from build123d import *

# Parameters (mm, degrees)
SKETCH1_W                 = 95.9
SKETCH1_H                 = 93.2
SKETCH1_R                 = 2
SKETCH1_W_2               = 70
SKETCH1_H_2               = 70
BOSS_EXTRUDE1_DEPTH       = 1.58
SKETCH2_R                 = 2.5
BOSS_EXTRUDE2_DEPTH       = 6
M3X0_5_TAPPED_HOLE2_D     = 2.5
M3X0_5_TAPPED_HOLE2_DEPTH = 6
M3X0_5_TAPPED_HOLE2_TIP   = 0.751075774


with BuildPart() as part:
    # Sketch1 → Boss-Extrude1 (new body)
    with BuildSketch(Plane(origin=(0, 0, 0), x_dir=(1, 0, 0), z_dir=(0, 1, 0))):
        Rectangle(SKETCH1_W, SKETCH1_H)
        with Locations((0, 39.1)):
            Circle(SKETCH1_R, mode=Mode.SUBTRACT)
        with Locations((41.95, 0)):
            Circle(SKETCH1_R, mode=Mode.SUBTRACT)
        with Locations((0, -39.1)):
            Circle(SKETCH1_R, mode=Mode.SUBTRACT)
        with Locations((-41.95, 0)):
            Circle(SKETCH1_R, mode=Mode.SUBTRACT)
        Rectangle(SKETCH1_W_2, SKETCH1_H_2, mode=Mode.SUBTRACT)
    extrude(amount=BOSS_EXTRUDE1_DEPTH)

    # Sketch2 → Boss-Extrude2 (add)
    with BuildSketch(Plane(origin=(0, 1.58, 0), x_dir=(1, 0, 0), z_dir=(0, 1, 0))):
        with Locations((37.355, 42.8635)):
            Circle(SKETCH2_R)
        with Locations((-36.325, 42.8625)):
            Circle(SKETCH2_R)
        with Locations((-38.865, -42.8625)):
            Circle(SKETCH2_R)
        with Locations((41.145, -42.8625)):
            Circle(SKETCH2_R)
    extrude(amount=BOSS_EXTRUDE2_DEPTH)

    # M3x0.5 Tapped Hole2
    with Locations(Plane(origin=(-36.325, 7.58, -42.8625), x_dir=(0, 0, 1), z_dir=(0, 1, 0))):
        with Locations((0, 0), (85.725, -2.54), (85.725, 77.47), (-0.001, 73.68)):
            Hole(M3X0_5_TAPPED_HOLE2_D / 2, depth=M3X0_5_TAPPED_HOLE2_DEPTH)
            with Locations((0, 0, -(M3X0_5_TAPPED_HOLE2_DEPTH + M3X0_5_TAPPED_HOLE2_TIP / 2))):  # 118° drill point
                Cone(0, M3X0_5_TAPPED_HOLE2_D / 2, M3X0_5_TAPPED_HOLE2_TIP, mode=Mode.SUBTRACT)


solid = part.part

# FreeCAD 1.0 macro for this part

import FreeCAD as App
import Part
import Sketcher

doc = App.newDocument("Part")
body = doc.addObject("PartDesign::Body", "Body")

# Sketch on XZ plane
sketch1 = body.newObject("Sketcher::SketchObject", "Sketch")
sketch1.AttachmentSupport = (doc.getObject("XZ_Plane"), [""])
sketch1.MapMode = "FlatFace"
sketch1.addGeometry(Part.LineSegment(App.Vector(-47.95, -46.6, 0), App.Vector(-47.95, 46.6, 0)), False)
sketch1.addGeometry(Part.LineSegment(App.Vector(-47.95, 46.6, 0), App.Vector(47.95, 46.6, 0)), False)
sketch1.addGeometry(Part.LineSegment(App.Vector(47.95, 46.6, 0), App.Vector(47.95, -46.6, 0)), False)
sketch1.addGeometry(Part.LineSegment(App.Vector(47.95, -46.6, 0), App.Vector(-47.95, -46.6, 0)), False)
sketch1.addGeometry(Part.Circle(App.Vector(0, 39.1, 0), App.Vector(0, 0, 1), 2), False)
sketch1.addGeometry(Part.Circle(App.Vector(-41.95, 0, 0), App.Vector(0, 0, 1), 2), False)
sketch1.addGeometry(Part.LineSegment(App.Vector(35, 35, 0), App.Vector(-35, 35, 0)), False)
sketch1.addGeometry(Part.LineSegment(App.Vector(-35, 35, 0), App.Vector(-35, -35, 0)), False)
sketch1.addGeometry(Part.LineSegment(App.Vector(-35, -35, 0), App.Vector(35, -35, 0)), False)
sketch1.addGeometry(Part.LineSegment(App.Vector(35, -35, 0), App.Vector(35, 35, 0)), False)
sketch1.addGeometry(Part.Circle(App.Vector(41.95, 0, 0), App.Vector(0, 0, 1), 2), False)
sketch1.addGeometry(Part.Circle(App.Vector(0, -39.1, 0), App.Vector(0, 0, 1), 2), False)
sketch1.addConstraint(Sketcher.Constraint("Coincident", 0, 2, 1, 1))
sketch1.addConstraint(Sketcher.Constraint("Coincident", 1, 2, 2, 1))
sketch1.addConstraint(Sketcher.Constraint("Coincident", 2, 2, 3, 1))
sketch1.addConstraint(Sketcher.Constraint("Coincident", 3, 2, 0, 1))
sketch1.addConstraint(Sketcher.Constraint("Coincident", 6, 2, 7, 1))
sketch1.addConstraint(Sketcher.Constraint("Coincident", 7, 2, 8, 1))
sketch1.addConstraint(Sketcher.Constraint("Coincident", 8, 2, 9, 1))
sketch1.addConstraint(Sketcher.Constraint("Coincident", 9, 2, 6, 1))
sketch1.addConstraint(Sketcher.Constraint("Vertical", 0))
sketch1.addConstraint(Sketcher.Constraint("Horizontal", 1))
sketch1.addConstraint(Sketcher.Constraint("Vertical", 2))
sketch1.addConstraint(Sketcher.Constraint("Horizontal", 3))
sketch1.addConstraint(Sketcher.Constraint("Horizontal", 6))
sketch1.addConstraint(Sketcher.Constraint("Vertical", 7))
sketch1.addConstraint(Sketcher.Constraint("Horizontal", 8))
sketch1.addConstraint(Sketcher.Constraint("Vertical", 9))
sketch1.addConstraint(Sketcher.Constraint("Equal", 4, 5))
sketch1.addConstraint(Sketcher.Constraint("Equal", 5, 10))
sketch1.addConstraint(Sketcher.Constraint("Equal", 10, 11))
sketch1.addConstraint(Sketcher.Constraint("Symmetric", 5, 3, 10, 3, -1, 1))
sketch1.addConstraint(Sketcher.Constraint("Symmetric", 4, 3, 11, 3, -1, 1))
sketch1.addConstraint(Sketcher.Constraint("Symmetric", 0, 2, 2, 2, -1, 1))
sketch1.addConstraint(Sketcher.Constraint("Symmetric", 6, 2, 8, 2, -1, 1))
sketch1.addConstraint(Sketcher.Constraint("PointOnObject", 4, 3, -2))
sketch1.addConstraint(Sketcher.Constraint("PointOnObject", 5, 3, -1))
sketch1.addConstraint(Sketcher.Constraint("Equal", 8, 7))
sketch1.addConstraint(Sketcher.Constraint("Diameter", 4, 4.0))
sketch1.addConstraint(Sketcher.Constraint("DistanceX", 6, 2, 6, 1, 70.0))
sketch1.addConstraint(Sketcher.Constraint("DistanceX", 1, 1, 1, 2, 95.9))
sketch1.addConstraint(Sketcher.Constraint("DistanceY", 0, 1, 0, 2, 93.2))
sketch1.addConstraint(Sketcher.Constraint("DistanceX", 0, 2, 5, 3, 6.0))
sketch1.addConstraint(Sketcher.Constraint("DistanceY", -1, 1, 4, 3, 39.1))
pad1 = body.newObject("PartDesign::Pad", "Pad")
pad1.Profile = sketch1
pad1.Length = 1.58
pad1.Reversed = True

# Sketch on XZ plane
sketch2 = body.newObject("Sketcher::SketchObject", "Sketch001")
sketch2.AttachmentSupport = (doc.getObject("XZ_Plane"), [""])
sketch2.MapMode = "FlatFace"
sketch2.AttachmentOffset = App.Placement(App.Vector(0, 0, -1.58), App.Rotation())
sketch2.addGeometry(Part.Circle(App.Vector(37.355, -42.8635, 0), App.Vector(0, 0, 1), 2.5), False)
sketch2.addGeometry(Part.Circle(App.Vector(-36.325, -42.8625, 0), App.Vector(0, 0, 1), 2.5), False)
sketch2.addGeometry(Part.Circle(App.Vector(-38.865, 42.8625, 0), App.Vector(0, 0, 1), 2.5), False)
sketch2.addGeometry(Part.Circle(App.Vector(41.145, 42.8625, 0), App.Vector(0, 0, 1), 2.5), False)
sketch2.addConstraint(Sketcher.Constraint("Equal", 0, 1))
sketch2.addConstraint(Sketcher.Constraint("Equal", 1, 2))
sketch2.addConstraint(Sketcher.Constraint("Equal", 2, 3))
sketch2.addConstraint(Sketcher.Constraint("Horizontal", 2, 3, 3, 3))
sketch2.addConstraint(Sketcher.Constraint("Diameter", 0, 5.0))
sketch2.addConstraint(Sketcher.Constraint("DistanceX", 1, 3, 0, 3, 73.68))
sketch2.addConstraint(Sketcher.Constraint("DistanceX", 2, 3, 1, 3, 2.54))
sketch2.addConstraint(Sketcher.Constraint("DistanceX", 2, 3, 3, 3, 80.01))
sketch2.addConstraint(Sketcher.Constraint("DistanceX", -1, 1, 0, 3, 37.355))
sketch2.addConstraint(Sketcher.Constraint("DistanceY", 0, 3, 1, 3, 0.001))
sketch2.addConstraint(Sketcher.Constraint("DistanceY", 1, 3, 2, 3, 85.725))
sketch2.addConstraint(Sketcher.Constraint("DistanceY", 0, 3, -1, 1, 42.8635))
pad2 = body.newObject("PartDesign::Pad", "Pad001")
pad2.Profile = sketch2
pad2.Length = 6
pad2.Reversed = True

# Sketch on XZ plane
sketch3 = body.newObject("Sketcher::SketchObject", "Sketch002")
sketch3.AttachmentSupport = (doc.getObject("XZ_Plane"), [""])
sketch3.MapMode = "FlatFace"
sketch3.AttachmentOffset = App.Placement(App.Vector(0, 0, -7.58), App.Rotation())
sketch3.addGeometry(Part.Circle(App.Vector(-36.325, -42.8625, 0), App.Vector(0, 0, 1), 1.25), False)
sketch3.addGeometry(Part.Circle(App.Vector(-38.865, 42.8625, 0), App.Vector(0, 0, 1), 1.25), False)
sketch3.addGeometry(Part.Circle(App.Vector(41.145, 42.8625, 0), App.Vector(0, 0, 1), 1.25), False)
sketch3.addGeometry(Part.Circle(App.Vector(37.355, -42.8635, 0), App.Vector(0, 0, 1), 1.25), False)
sketch3.addConstraint(Sketcher.Constraint("Equal", 0, 1))
sketch3.addConstraint(Sketcher.Constraint("Equal", 1, 2))
sketch3.addConstraint(Sketcher.Constraint("Equal", 2, 3))
sketch3.addConstraint(Sketcher.Constraint("Horizontal", 1, 3, 2, 3))
sketch3.addConstraint(Sketcher.Constraint("Diameter", 0, 2.5))
sketch3.addConstraint(Sketcher.Constraint("DistanceX", 1, 3, 0, 3, 2.54))
sketch3.addConstraint(Sketcher.Constraint("DistanceX", 1, 3, 2, 3, 80.01))
sketch3.addConstraint(Sketcher.Constraint("DistanceX", 0, 3, 3, 3, 73.68))
sketch3.addConstraint(Sketcher.Constraint("DistanceX", 0, 3, -1, 1, 36.325))
sketch3.addConstraint(Sketcher.Constraint("DistanceY", 0, 3, 1, 3, 85.725))
sketch3.addConstraint(Sketcher.Constraint("DistanceY", 3, 3, 0, 3, 0.001))
sketch3.addConstraint(Sketcher.Constraint("DistanceY", 0, 3, -1, 1, 42.8625))
doc.recompute()
hole = body.newObject("PartDesign::Hole", "Hole")
hole.Profile = sketch3
hole.ThreadType = "None"
hole.Diameter = 2.5
hole.DepthType = "Dimension"
hole.Depth = 6
hole.DrillPoint = "Angled"
hole.DrillPointAngle = 118
hole.Reversed = True

doc.recompute()
